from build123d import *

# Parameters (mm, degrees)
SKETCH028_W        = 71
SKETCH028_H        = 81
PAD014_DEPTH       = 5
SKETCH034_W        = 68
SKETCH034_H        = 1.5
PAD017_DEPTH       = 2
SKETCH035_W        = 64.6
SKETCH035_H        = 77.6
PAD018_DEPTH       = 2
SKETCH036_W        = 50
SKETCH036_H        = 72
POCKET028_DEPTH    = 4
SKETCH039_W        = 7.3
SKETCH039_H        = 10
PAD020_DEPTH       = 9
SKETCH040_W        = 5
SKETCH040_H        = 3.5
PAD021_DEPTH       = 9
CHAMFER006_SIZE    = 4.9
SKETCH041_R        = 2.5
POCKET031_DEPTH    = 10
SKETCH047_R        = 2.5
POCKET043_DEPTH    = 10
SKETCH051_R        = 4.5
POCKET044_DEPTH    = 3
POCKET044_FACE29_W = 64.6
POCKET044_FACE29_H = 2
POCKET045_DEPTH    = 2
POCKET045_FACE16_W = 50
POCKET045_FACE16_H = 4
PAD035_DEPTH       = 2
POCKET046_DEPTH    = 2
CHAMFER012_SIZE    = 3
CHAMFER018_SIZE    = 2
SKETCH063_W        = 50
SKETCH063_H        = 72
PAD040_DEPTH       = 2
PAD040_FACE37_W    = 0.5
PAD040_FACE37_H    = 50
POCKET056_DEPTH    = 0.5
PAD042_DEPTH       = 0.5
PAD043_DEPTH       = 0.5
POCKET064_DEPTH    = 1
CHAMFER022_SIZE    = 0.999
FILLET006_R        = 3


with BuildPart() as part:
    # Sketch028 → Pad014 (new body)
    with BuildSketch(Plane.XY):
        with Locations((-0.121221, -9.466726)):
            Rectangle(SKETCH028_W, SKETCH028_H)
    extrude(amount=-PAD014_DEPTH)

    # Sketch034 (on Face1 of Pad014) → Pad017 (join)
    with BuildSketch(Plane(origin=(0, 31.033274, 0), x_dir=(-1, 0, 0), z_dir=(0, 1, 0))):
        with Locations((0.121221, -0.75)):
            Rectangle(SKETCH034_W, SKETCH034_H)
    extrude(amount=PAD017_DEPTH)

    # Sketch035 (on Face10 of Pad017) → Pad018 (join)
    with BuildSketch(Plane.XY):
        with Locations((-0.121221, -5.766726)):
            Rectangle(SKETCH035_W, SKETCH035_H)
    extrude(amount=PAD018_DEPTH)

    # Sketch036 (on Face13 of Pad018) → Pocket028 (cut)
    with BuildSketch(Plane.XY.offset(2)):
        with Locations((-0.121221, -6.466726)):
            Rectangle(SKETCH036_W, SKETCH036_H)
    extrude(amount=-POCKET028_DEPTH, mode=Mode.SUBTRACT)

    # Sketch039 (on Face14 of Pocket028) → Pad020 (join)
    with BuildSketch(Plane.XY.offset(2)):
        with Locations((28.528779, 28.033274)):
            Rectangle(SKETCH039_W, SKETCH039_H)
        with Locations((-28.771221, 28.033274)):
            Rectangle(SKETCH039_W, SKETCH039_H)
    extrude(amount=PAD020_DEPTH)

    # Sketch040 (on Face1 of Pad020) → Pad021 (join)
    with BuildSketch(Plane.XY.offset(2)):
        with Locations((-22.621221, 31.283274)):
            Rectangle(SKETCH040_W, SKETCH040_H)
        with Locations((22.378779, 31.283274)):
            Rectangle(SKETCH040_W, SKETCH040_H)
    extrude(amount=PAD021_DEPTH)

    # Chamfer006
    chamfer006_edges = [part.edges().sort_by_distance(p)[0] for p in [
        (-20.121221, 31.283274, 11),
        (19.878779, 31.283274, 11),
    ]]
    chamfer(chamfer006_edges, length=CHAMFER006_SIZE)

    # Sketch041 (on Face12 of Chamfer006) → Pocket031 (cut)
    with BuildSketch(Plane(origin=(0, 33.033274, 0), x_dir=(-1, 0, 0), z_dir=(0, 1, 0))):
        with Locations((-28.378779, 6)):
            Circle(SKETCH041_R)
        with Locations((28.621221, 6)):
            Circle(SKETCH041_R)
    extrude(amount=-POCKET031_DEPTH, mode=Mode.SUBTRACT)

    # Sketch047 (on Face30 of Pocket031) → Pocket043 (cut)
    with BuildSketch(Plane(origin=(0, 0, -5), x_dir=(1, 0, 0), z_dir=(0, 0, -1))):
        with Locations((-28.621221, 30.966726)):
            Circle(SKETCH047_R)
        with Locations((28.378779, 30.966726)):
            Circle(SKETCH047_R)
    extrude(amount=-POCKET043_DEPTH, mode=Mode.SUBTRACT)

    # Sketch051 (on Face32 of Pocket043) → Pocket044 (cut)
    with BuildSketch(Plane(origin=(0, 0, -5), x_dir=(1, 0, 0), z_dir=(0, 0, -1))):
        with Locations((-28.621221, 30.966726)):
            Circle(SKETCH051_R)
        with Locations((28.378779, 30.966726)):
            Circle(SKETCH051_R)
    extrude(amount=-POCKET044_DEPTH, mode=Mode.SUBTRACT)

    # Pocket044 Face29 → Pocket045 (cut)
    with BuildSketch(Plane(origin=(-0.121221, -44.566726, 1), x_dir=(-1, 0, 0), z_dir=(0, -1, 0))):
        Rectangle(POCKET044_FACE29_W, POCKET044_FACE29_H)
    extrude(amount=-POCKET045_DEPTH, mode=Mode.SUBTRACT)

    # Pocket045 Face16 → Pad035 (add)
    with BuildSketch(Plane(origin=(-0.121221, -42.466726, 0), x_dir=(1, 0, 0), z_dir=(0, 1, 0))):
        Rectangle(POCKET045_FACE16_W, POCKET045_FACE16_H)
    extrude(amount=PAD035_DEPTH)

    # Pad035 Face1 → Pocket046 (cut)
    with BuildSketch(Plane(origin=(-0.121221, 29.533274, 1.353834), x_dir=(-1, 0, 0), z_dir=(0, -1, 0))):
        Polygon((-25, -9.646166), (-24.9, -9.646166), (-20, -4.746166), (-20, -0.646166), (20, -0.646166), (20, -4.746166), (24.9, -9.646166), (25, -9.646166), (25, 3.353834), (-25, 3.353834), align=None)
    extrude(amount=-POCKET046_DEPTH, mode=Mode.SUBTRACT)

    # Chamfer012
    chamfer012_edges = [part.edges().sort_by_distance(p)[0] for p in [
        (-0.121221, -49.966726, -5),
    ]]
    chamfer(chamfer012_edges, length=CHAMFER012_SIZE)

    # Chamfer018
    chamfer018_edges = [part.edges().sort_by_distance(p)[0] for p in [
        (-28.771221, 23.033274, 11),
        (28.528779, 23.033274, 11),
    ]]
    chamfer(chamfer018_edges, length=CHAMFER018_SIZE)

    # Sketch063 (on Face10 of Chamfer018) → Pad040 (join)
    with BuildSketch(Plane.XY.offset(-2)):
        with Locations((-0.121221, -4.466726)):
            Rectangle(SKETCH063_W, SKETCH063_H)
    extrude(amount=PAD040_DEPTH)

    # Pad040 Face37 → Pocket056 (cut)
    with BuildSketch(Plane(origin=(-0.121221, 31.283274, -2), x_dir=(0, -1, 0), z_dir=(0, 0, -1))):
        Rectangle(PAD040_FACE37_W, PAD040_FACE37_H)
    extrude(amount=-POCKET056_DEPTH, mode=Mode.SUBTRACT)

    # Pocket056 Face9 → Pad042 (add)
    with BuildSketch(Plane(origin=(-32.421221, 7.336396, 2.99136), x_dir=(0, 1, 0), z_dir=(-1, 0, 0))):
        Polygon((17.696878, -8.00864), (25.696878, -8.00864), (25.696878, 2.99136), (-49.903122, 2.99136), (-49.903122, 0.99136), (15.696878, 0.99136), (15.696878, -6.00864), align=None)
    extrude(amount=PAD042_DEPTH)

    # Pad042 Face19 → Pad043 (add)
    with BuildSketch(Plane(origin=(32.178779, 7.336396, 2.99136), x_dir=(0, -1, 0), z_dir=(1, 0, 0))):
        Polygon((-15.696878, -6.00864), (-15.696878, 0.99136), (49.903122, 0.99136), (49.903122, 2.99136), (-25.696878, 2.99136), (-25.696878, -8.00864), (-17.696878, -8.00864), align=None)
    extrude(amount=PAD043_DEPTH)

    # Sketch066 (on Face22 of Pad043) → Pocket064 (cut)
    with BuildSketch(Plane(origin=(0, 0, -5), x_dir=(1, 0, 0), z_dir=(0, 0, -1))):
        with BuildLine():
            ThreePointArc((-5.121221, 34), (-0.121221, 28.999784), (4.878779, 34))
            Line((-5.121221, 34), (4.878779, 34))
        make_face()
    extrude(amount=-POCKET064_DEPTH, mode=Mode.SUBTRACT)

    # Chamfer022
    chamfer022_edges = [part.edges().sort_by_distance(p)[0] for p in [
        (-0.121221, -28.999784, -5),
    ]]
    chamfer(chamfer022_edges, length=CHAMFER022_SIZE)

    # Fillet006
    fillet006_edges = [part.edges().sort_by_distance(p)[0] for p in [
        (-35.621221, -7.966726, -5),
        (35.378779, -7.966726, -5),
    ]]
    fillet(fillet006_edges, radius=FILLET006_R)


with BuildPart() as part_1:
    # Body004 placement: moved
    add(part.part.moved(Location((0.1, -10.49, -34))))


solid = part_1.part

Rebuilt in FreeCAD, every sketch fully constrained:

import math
import FreeCAD as App
import Part
import Sketcher
Q = App.Units.Quantity


def edges_at(feature, points):
    """Names of the edges that pass closest to the given points."""
    edges = feature.Shape.Edges
    near = lambda p: min(range(len(edges)), key=lambda i: edges[i].distToShape(Part.Vertex(*p))[0])
    return sorted({f"Edge{near(p) + 1}" for p in points})

doc = App.newDocument("Part")
params = doc.addObject("Spreadsheet::Sheet", "Params")
for row, (alias, value) in enumerate([
    ("sketch1_width", "71 mm"),
    ("sketch1_height", "81 mm"),
    ("pad1_length", "5 mm"),
    ("sketch2_width", "68 mm"),
    ("sketch2_height", "1.5 mm"),
    ("pad2_length", "2 mm"),
    ("sketch3_width", "64.6 mm"),
    ("sketch3_height", "77.6 mm"),
    ("pad3_length", "2 mm"),
    ("sketch4_width", "50 mm"),
    ("sketch4_height", "72 mm"),
    ("pocket1_length", "4 mm"),
    ("sketch5_height", "10 mm"),
    ("sketch5_width", "7.3 mm"),
    ("pad4_length", "9 mm"),
    ("sketch6_width", "5 mm"),
    ("sketch6_height", "3.5 mm"),
    ("pad5_length", "9 mm"),
    ("chamfer_size", "4.9 mm"),
    ("sketch7_diameter", "5 mm"),
    ("pocket2_length", "10 mm"),
    ("sketch8_diameter", "5 mm"),
    ("pocket3_length", "10 mm"),
    ("sketch9_diameter", "9 mm"),
    ("pocket4_length", "3 mm"),
    ("sketch10_height", "2 mm"),
    ("sketch10_width", "64.6 mm"),
    ("pocket5_length", "2 mm"),
    ("sketch11_width", "50 mm"),
    ("sketch11_height", "4 mm"),
    ("pad6_length", "2 mm"),
    ("sketch12_width", "40 mm"),
    ("sketch12_width2", "50 mm"),
    ("sketch12_height", "13 mm"),
    ("sketch12_width3", "0.1 mm"),
    ("sketch12_height2", "4.1 mm"),
    ("pocket6_length", "2 mm"),
    ("chamfer2_size", "3 mm"),
    ("chamfer3_size", "2 mm"),
    ("sketch13_width", "50 mm"),
    ("sketch13_height", "72 mm"),
    ("pad7_length", "2 mm"),
    ("sketch14_width", "50 mm"),
    ("sketch14_height", "0.5 mm"),
    ("pocket7_length", "0.5 mm"),
    ("sketch15_width", "8 mm"),
    ("sketch15_height", "11 mm"),
    ("sketch15_height2", "2 mm"),
    ("sketch15_height3", "7 mm"),
    ("sketch15_width2", "75.6 mm"),
    ("pad8_length", "0.5 mm"),
    ("sketch16_width", "8 mm"),
    ("sketch16_height", "7 mm"),
    ("sketch16_height2", "2 mm"),
    ("sketch16_height3", "11 mm"),
    ("sketch16_width2", "65.6 mm"),
    ("pad9_length", "0.5 mm"),
    ("sketch17_radius", "5 mm"),
    ("pocket8_length", "1 mm"),
    ("chamfer4_size", "0.999 mm"),
    ("fillet_radius", "3 mm"),
], start=1):
    params.set(f"A{row}", alias)
    params.set(f"B{row}", "=" + value)
    params.setAlias(f"B{row}", alias)

body = doc.addObject("PartDesign::Body", "Body")

sketch1 = body.newObject("Sketcher::SketchObject", "Sketch")
sketch1.AttachmentSupport = (doc.getObject("XY_Plane"), [""])
sketch1.MapMode = "FlatFace"
sketch1.addGeometry([
    Part.LineSegment(App.Vector(-36, 31, 0), App.Vector(-36, -50, 0)),
    Part.LineSegment(App.Vector(-36, -50, 0), App.Vector(35, -50, 0)),
    Part.LineSegment(App.Vector(35, -50, 0), App.Vector(35, 31, 0)),
    Part.LineSegment(App.Vector(35, 31, 0), App.Vector(-36, 31, 0)),
], False)
sketch1.addConstraint([
    Sketcher.Constraint("Coincident", 0, 2, 1, 1),
    Sketcher.Constraint("Coincident", 1, 2, 2, 1),
    Sketcher.Constraint("Coincident", 2, 2, 3, 1),
    Sketcher.Constraint("Coincident", 3, 2, 0, 1),
    Sketcher.Constraint("Vertical", 0),
    Sketcher.Constraint("Horizontal", 1),
    Sketcher.Constraint("Vertical", 2),
    Sketcher.Constraint("Horizontal", 3),
    Sketcher.Constraint("DistanceX", 1, 1, 1, 2, Q("71 mm")),
    Sketcher.Constraint("DistanceY", 0, 2, 0, 1, Q("81 mm")),
    Sketcher.Constraint("DistanceX", 0, 2, -1, 1, Q("35.621221 mm")),
    Sketcher.Constraint("DistanceY", 0, 2, -1, 1, Q("49.966726 mm")),
])
sketch1.setExpression("Constraints[8]", "Params.sketch1_width")
sketch1.setExpression("Constraints[9]", "Params.sketch1_height")
pad1 = body.newObject("PartDesign::Pad", "Pad")
pad1.Profile = sketch1
pad1.setExpression("Length", "Params.pad1_length")
pad1.Reversed = True

sketch2 = body.newObject("Sketcher::SketchObject", "Sketch001")
sketch2.AttachmentSupport = (doc.getObject("XZ_Plane"), [""])
sketch2.MapMode = "FlatFace"
sketch2.AttachmentOffset = App.Placement(App.Vector(0, 0, -31.033274), App.Rotation())
sketch2.addGeometry([
    Part.LineSegment(App.Vector(33.9, 0, 0), App.Vector(33.9, -1.5, 0)),
    Part.LineSegment(App.Vector(33.9, -1.5, 0), App.Vector(-34.1, -1.5, 0)),
    Part.LineSegment(App.Vector(-34.1, -1.5, 0), App.Vector(-34.1, 0, 0)),
    Part.LineSegment(App.Vector(-34.1, 0, 0), App.Vector(33.9, 0, 0)),
], False)
sketch2.addConstraint([
    Sketcher.Constraint("Coincident", 0, 2, 1, 1),
    Sketcher.Constraint("Coincident", 1, 2, 2, 1),
    Sketcher.Constraint("Coincident", 2, 2, 3, 1),
    Sketcher.Constraint("Coincident", 3, 2, 0, 1),
    Sketcher.Constraint("Vertical", 0),
    Sketcher.Constraint("Horizontal", 1),
    Sketcher.Constraint("Vertical", 2),
    Sketcher.Constraint("Horizontal", 3),
    Sketcher.Constraint("PointOnObject", 2, 2, -1),
    Sketcher.Constraint("DistanceX", 1, 2, 1, 1, Q("68 mm")),
    Sketcher.Constraint("DistanceY", 0, 2, 0, 1, Q("1.5 mm")),
    Sketcher.Constraint("DistanceX", -1, 1, 0, 2, Q("33.878779 mm")),
])
sketch2.setExpression("Constraints[9]", "Params.sketch2_width")
sketch2.setExpression("Constraints[10]", "Params.sketch2_height")
pad2 = body.newObject("PartDesign::Pad", "Pad001")
pad2.Profile = sketch2
pad2.setExpression("Length", "Params.pad2_length")
pad2.Reversed = True

sketch3 = body.newObject("Sketcher::SketchObject", "Sketch002")
sketch3.AttachmentSupport = (doc.getObject("XY_Plane"), [""])
sketch3.MapMode = "FlatFace"
sketch3.addGeometry([
    Part.LineSegment(App.Vector(-32, 33, 0), App.Vector(-32, -45, 0)),
    Part.LineSegment(App.Vector(-32, -45, 0), App.Vector(32, -45, 0)),
    Part.LineSegment(App.Vector(32, -45, 0), App.Vector(32, 33, 0)),
    Part.LineSegment(App.Vector(32, 33, 0), App.Vector(-32, 33, 0)),
], False)
sketch3.addConstraint([
    Sketcher.Constraint("Coincident", 0, 2, 1, 1),
    Sketcher.Constraint("Coincident", 1, 2, 2, 1),
    Sketcher.Constraint("Coincident", 2, 2, 3, 1),
    Sketcher.Constraint("Coincident", 3, 2, 0, 1),
    Sketcher.Constraint("Vertical", 0),
    Sketcher.Constraint("Horizontal", 1),
    Sketcher.Constraint("Vertical", 2),
    Sketcher.Constraint("Horizontal", 3),
    Sketcher.Constraint("DistanceX", 1, 1, 1, 2, Q("64.6 mm")),
    Sketcher.Constraint("DistanceY", 0, 2, 0, 1, Q("77.6 mm")),
    Sketcher.Constraint("DistanceX", 0, 2, -1, 1, Q("32.421221 mm")),
    Sketcher.Constraint("DistanceY", 0, 2, -1, 1, Q("44.566726 mm")),
])
sketch3.setExpression("Constraints[8]", "Params.sketch3_width")
sketch3.setExpression("Constraints[9]", "Params.sketch3_height")
pad3 = body.newObject("PartDesign::Pad", "Pad002")
pad3.Profile = sketch3
pad3.setExpression("Length", "Params.pad3_length")

sketch4 = body.newObject("Sketcher::SketchObject", "Sketch003")
sketch4.AttachmentSupport = (doc.getObject("XY_Plane"), [""])
sketch4.MapMode = "FlatFace"
sketch4.AttachmentOffset = App.Placement(App.Vector(0, 0, 2), App.Rotation())
sketch4.addGeometry([
    Part.LineSegment(App.Vector(-25, 30, 0), App.Vector(-25, -42, 0)),
    Part.LineSegment(App.Vector(-25, -42, 0), App.Vector(25, -42, 0)),
    Part.LineSegment(App.Vector(25, -42, 0), App.Vector(25, 30, 0)),
    Part.LineSegment(App.Vector(25, 30, 0), App.Vector(-25, 30, 0)),
], False)
sketch4.addConstraint([
    Sketcher.Constraint("Coincident", 0, 2, 1, 1),
    Sketcher.Constraint("Coincident", 1, 2, 2, 1),
    Sketcher.Constraint("Coincident", 2, 2, 3, 1),
    Sketcher.Constraint("Coincident", 3, 2, 0, 1),
    Sketcher.Constraint("Vertical", 0),
    Sketcher.Constraint("Horizontal", 1),
    Sketcher.Constraint("Vertical", 2),
    Sketcher.Constraint("Horizontal", 3),
    Sketcher.Constraint("DistanceX", 1, 1, 1, 2, Q("50 mm")),
    Sketcher.Constraint("DistanceY", 0, 2, 0, 1, Q("72 mm")),
    Sketcher.Constraint("DistanceX", 0, 2, -1, 1, Q("25.121221 mm")),
    Sketcher.Constraint("DistanceY", 0, 2, -1, 1, Q("42.466726 mm")),
])
sketch4.setExpression("Constraints[8]", "Params.sketch4_width")
sketch4.setExpression("Constraints[9]", "Params.sketch4_height")
pocket1 = body.newObject("PartDesign::Pocket", "Pocket")
pocket1.Profile = sketch4
pocket1.setExpression("Length", "Params.pocket1_length")

sketch5 = body.newObject("Sketcher::SketchObject", "Sketch004")
sketch5.AttachmentSupport = (doc.getObject("XY_Plane"), [""])
sketch5.MapMode = "FlatFace"
sketch5.AttachmentOffset = App.Placement(App.Vector(0, 0, 2), App.Rotation())
sketch5.addGeometry([
    Part.LineSegment(App.Vector(25, 33, 0), App.Vector(25, 23, 0)),
    Part.LineSegment(App.Vector(25, 23, 0), App.Vector(32, 23, 0)),
    Part.LineSegment(App.Vector(32, 23, 0), App.Vector(32, 33, 0)),
    Part.LineSegment(App.Vector(32, 33, 0), App.Vector(25, 33, 0)),
    Part.LineSegment(App.Vector(-32, 33, 0), App.Vector(-32, 23, 0)),
    Part.LineSegment(App.Vector(-32, 23, 0), App.Vector(-25, 23, 0)),
    Part.LineSegment(App.Vector(-25, 23, 0), App.Vector(-25, 33, 0)),
    Part.LineSegment(App.Vector(-25, 33, 0), App.Vector(-32, 33, 0)),
], False)
sketch5.addConstraint([
    Sketcher.Constraint("Coincident", 0, 2, 1, 1),
    Sketcher.Constraint("Coincident", 1, 2, 2, 1),
    Sketcher.Constraint("Coincident", 2, 2, 3, 1),
    Sketcher.Constraint("Coincident", 3, 2, 0, 1),
    Sketcher.Constraint("Coincident", 4, 2, 5, 1),
    Sketcher.Constraint("Coincident", 5, 2, 6, 1),
    Sketcher.Constraint("Coincident", 6, 2, 7, 1),
    Sketcher.Constraint("Coincident", 7, 2, 4, 1),
    Sketcher.Constraint("Vertical", 0),
    Sketcher.Constraint("Horizontal", 1),
    Sketcher.Constraint("Vertical", 2),
    Sketcher.Constraint("Horizontal", 3),
    Sketcher.Constraint("Vertical", 4),
    Sketcher.Constraint("Horizontal", 5),
    Sketcher.Constraint("Vertical", 6),
    Sketcher.Constraint("Horizontal", 7),
    Sketcher.Constraint("Horizontal", 1, 2, 4, 2),
    Sketcher.Constraint("Horizontal", 3, 2, 6, 2),
    Sketcher.Constraint("Equal", 3, 5),
    Sketcher.Constraint("DistanceY", 0, 2, 0, 1, Q("10 mm")),
    Sketcher.Constraint("DistanceX", 1, 1, 1, 2, Q("7.3 mm")),
    Sketcher.Constraint("DistanceX", 5, 2, 0, 2, Q("50 mm")),
    Sketcher.Constraint("DistanceX", -1, 1, 0, 2, Q("24.878779 mm")),
    Sketcher.Constraint("DistanceY", -1, 1, 0, 2, Q("23.033274 mm")),
])
sketch5.setExpression("Constraints[19]", "Params.sketch5_height")
sketch5.setExpression("Constraints[20]", "Params.sketch5_width")
pad4 = body.newObject("PartDesign::Pad", "Pad003")
pad4.Profile = sketch5
pad4.setExpression("Length", "Params.pad4_length")

sketch6 = body.newObject("Sketcher::SketchObject", "Sketch005")
sketch6.AttachmentSupport = (doc.getObject("XY_Plane"), [""])
sketch6.MapMode = "FlatFace"
sketch6.AttachmentOffset = App.Placement(App.Vector(0, 0, 2), App.Rotation())
sketch6.addGeometry([
    Part.LineSegment(App.Vector(-25.1, 33, 0), App.Vector(-25.1, 29.5, 0)),
    Part.LineSegment(App.Vector(-25.1, 29.5, 0), App.Vector(-20.1, 29.5, 0)),
    Part.LineSegment(App.Vector(-20.1, 29.5, 0), App.Vector(-20.1, 33, 0)),
    Part.LineSegment(App.Vector(-20.1, 33, 0), App.Vector(-25.1, 33, 0)),
    Part.LineSegment(App.Vector(19.9, 33, 0), App.Vector(19.9, 29.5, 0)),
    Part.LineSegment(App.Vector(19.9, 29.5, 0), App.Vector(24.9, 29.5, 0)),
    Part.LineSegment(App.Vector(24.9, 29.5, 0), App.Vector(24.9, 33, 0)),
    Part.LineSegment(App.Vector(24.9, 33, 0), App.Vector(19.9, 33, 0)),
], False)
sketch6.addConstraint([
    Sketcher.Constraint("Coincident", 0, 2, 1, 1),
    Sketcher.Constraint("Coincident", 1, 2, 2, 1),
    Sketcher.Constraint("Coincident", 2, 2, 3, 1),
    Sketcher.Constraint("Coincident", 3, 2, 0, 1),
    Sketcher.Constraint("Coincident", 4, 2, 5, 1),
    Sketcher.Constraint("Coincident", 5, 2, 6, 1),
    Sketcher.Constraint("Coincident", 6, 2, 7, 1),
    Sketcher.Constraint("Coincident", 7, 2, 4, 1),
    Sketcher.Constraint("Vertical", 0),
    Sketcher.Constraint("Horizontal", 1),
    Sketcher.Constraint("Vertical", 2),
    Sketcher.Constraint("Horizontal", 3),
    Sketcher.Constraint("Vertical", 4),
    Sketcher.Constraint("Horizontal", 5),
    Sketcher.Constraint("Vertical", 6),
    Sketcher.Constraint("Horizontal", 7),
    Sketcher.Constraint("Horizontal", 1, 2, 4, 2),
    Sketcher.Constraint("Horizontal", 3, 2, 6, 2),
    Sketcher.Constraint("Equal", 3, 5),
    Sketcher.Constraint("DistanceX", 1, 1, 1, 2, Q("5 mm")),
    Sketcher.Constraint("DistanceY", 0, 2, 0, 1, Q("3.5 mm")),
    Sketcher.Constraint("DistanceX", 1, 2, 4, 2, Q("40 mm")),
    Sketcher.Constraint("DistanceX", 0, 2, -1, 1, Q("25.121221 mm")),
    Sketcher.Constraint("DistanceY", -1, 1, 0, 2, Q("29.533274 mm")),
])
sketch6.setExpression("Constraints[19]", "Params.sketch6_width")
sketch6.setExpression("Constraints[20]", "Params.sketch6_height")
pad5 = body.newObject("PartDesign::Pad", "Pad004")
pad5.Profile = sketch6
pad5.setExpression("Length", "Params.pad5_length")
doc.recompute()

chamfer = body.newObject("PartDesign::Chamfer", "Chamfer")
chamfer.Base = (pad5, edges_at(pad5, [(-20.121, 31.283, 11), (19.879, 31.283, 11)]))
chamfer.setExpression("Size", "Params.chamfer_size")

sketch7 = body.newObject("Sketcher::SketchObject", "Sketch006")
sketch7.AttachmentSupport = (doc.getObject("XZ_Plane"), [""])
sketch7.MapMode = "FlatFace"
sketch7.AttachmentOffset = App.Placement(App.Vector(0, 0, -33.033274), App.Rotation())
sketch7.addGeometry([
    Part.Circle(App.Vector(28.4, 6, 0), App.Vector(0, 0, 1), 2.5),
    Part.Circle(App.Vector(-28.6, 6, 0), App.Vector(0, 0, 1), 2.5),
], False)
sketch7.addConstraint([
    Sketcher.Constraint("Equal", 0, 1),
    Sketcher.Constraint("Horizontal", 0, 3, 1, 3),
    Sketcher.Constraint("Diameter", 0, Q("5 mm")),
    Sketcher.Constraint("DistanceY", -1, 1, 0, 3, Q("6 mm")),
    Sketcher.Constraint("DistanceX", 1, 3, 0, 3, Q("57 mm")),
    Sketcher.Constraint("DistanceX", -1, 1, 0, 3, Q("28.378779 mm")),
])
sketch7.setExpression("Constraints[2]", "Params.sketch7_diameter")
pocket2 = body.newObject("PartDesign::Pocket", "Pocket001")
pocket2.Profile = sketch7
pocket2.setExpression("Length", "Params.pocket2_length")
pocket2.Reversed = True

sketch8 = body.newObject("Sketcher::SketchObject", "Sketch007")
sketch8.AttachmentSupport = (doc.getObject("XY_Plane"), [""])
sketch8.MapMode = "FlatFace"
sketch8.AttachmentOffset = App.Placement(App.Vector(0, 0, -5), App.Rotation())
sketch8.addGeometry([
    Part.Circle(App.Vector(-28.6, -31, 0), App.Vector(0, 0, 1), 2.5),
    Part.Circle(App.Vector(28.4, -31, 0), App.Vector(0, 0, 1), 2.5),
], False)
sketch8.addConstraint([
    Sketcher.Constraint("Equal", 0, 1),
    Sketcher.Constraint("Horizontal", 0, 3, 1, 3),
    Sketcher.Constraint("Diameter", 0, Q("5 mm")),
    Sketcher.Constraint("DistanceX", 0, 3, 1, 3, Q("57 mm")),
    Sketcher.Constraint("DistanceX", 0, 3, -1, 1, Q("28.621221 mm")),
    Sketcher.Constraint("DistanceY", 0, 3, -1, 1, Q("30.966726 mm")),
])
sketch8.setExpression("Constraints[2]", "Params.sketch8_diameter")
pocket3 = body.newObject("PartDesign::Pocket", "Pocket002")
pocket3.Profile = sketch8
pocket3.setExpression("Length", "Params.pocket3_length")
pocket3.Reversed = True

sketch9 = body.newObject("Sketcher::SketchObject", "Sketch008")
sketch9.AttachmentSupport = (doc.getObject("XY_Plane"), [""])
sketch9.MapMode = "FlatFace"
sketch9.AttachmentOffset = App.Placement(App.Vector(0, 0, -5), App.Rotation())
sketch9.addGeometry([
    Part.Circle(App.Vector(-28.6, -31, 0), App.Vector(0, 0, 1), 4.5),
    Part.Circle(App.Vector(28.4, -31, 0), App.Vector(0, 0, 1), 4.5),
], False)
sketch9.addConstraint([
    Sketcher.Constraint("Equal", 0, 1),
    Sketcher.Constraint("Horizontal", 0, 3, 1, 3),
    Sketcher.Constraint("Diameter", 0, Q("9 mm")),
    Sketcher.Constraint("DistanceX", 0, 3, 1, 3, Q("57 mm")),
    Sketcher.Constraint("DistanceX", 0, 3, -1, 1, Q("28.621221 mm")),
    Sketcher.Constraint("DistanceY", 0, 3, -1, 1, Q("30.966726 mm")),
])
sketch9.setExpression("Constraints[2]", "Params.sketch9_diameter")
pocket4 = body.newObject("PartDesign::Pocket", "Pocket003")
pocket4.Profile = sketch9
pocket4.setExpression("Length", "Params.pocket4_length")
pocket4.Reversed = True

sketch10 = body.newObject("Sketcher::SketchObject", "Sketch009")
sketch10.AttachmentSupport = (doc.getObject("XZ_Plane"), [""])
sketch10.MapMode = "FlatFace"
sketch10.AttachmentOffset = App.Placement(App.Vector(0, 0, 44.566726), App.Rotation())
sketch10.addGeometry([
    Part.LineSegment(App.Vector(32.2, 0, 0), App.Vector(32.2, 2, 0)),
    Part.LineSegment(App.Vector(32.2, 2, 0), App.Vector(-32.4, 2, 0)),
    Part.LineSegment(App.Vector(-32.4, 2, 0), App.Vector(-32.4, 0, 0)),
    Part.LineSegment(App.Vector(-32.4, 0, 0), App.Vector(32.2, 0, 0)),
], False)
sketch10.addConstraint([
    Sketcher.Constraint("Coincident", 0, 2, 1, 1),
    Sketcher.Constraint("Coincident", 1, 2, 2, 1),
    Sketcher.Constraint("Coincident", 2, 2, 3, 1),
    Sketcher.Constraint("Coincident", 3, 2, 0, 1),
    Sketcher.Constraint("Vertical", 0),
    Sketcher.Constraint("Horizontal", 1),
    Sketcher.Constraint("Vertical", 2),
    Sketcher.Constraint("Horizontal", 3),
    Sketcher.Constraint("PointOnObject", 2, 2, -1),
    Sketcher.Constraint("DistanceY", 0, 1, 0, 2, Q("2 mm")),
    Sketcher.Constraint("DistanceX", 1, 2, 1, 1, Q("64.6 mm")),
    Sketcher.Constraint("DistanceX", -1, 1, 0, 2, Q("32.178779 mm")),
])
sketch10.setExpression("Constraints[9]", "Params.sketch10_height")
sketch10.setExpression("Constraints[10]", "Params.sketch10_width")
pocket5 = body.newObject("PartDesign::Pocket", "Pocket004")
pocket5.Profile = sketch10
pocket5.setExpression("Length", "Params.pocket5_length")

sketch11 = body.newObject("Sketcher::SketchObject", "Sketch010")
sketch11.AttachmentSupport = (doc.getObject("XZ_Plane"), [""])
sketch11.MapMode = "FlatFace"
sketch11.AttachmentOffset = App.Placement(App.Vector(0, 0, 42.466726), App.Rotation())
sketch11.addGeometry([
    Part.LineSegment(App.Vector(-25.1, -2, 0), App.Vector(-25.1, 2, 0)),
    Part.LineSegment(App.Vector(-25.1, 2, 0), App.Vector(24.9, 2, 0)),
    Part.LineSegment(App.Vector(24.9, 2, 0), App.Vector(24.9, -2, 0)),
    Part.LineSegment(App.Vector(24.9, -2, 0), App.Vector(-25.1, -2, 0)),
], False)
sketch11.addConstraint([
    Sketcher.Constraint("Coincident", 0, 2, 1, 1),
    Sketcher.Constraint("Coincident", 1, 2, 2, 1),
    Sketcher.Constraint("Coincident", 2, 2, 3, 1),
    Sketcher.Constraint("Coincident", 3, 2, 0, 1),
    Sketcher.Constraint("Vertical", 0),
    Sketcher.Constraint("Horizontal", 1),
    Sketcher.Constraint("Vertical", 2),
    Sketcher.Constraint("Horizontal", 3),
    Sketcher.Constraint("DistanceX", 1, 1, 1, 2, Q("50 mm")),
    Sketcher.Constraint("DistanceY", 0, 1, 0, 2, Q("4 mm")),
    Sketcher.Constraint("DistanceY", -1, 1, 0, 2, Q("2 mm")),
    Sketcher.Constraint("DistanceX", 0, 2, -1, 1, Q("25.121221 mm")),
])
sketch11.setExpression("Constraints[8]", "Params.sketch11_width")
sketch11.setExpression("Constraints[9]", "Params.sketch11_height")
pad6 = body.newObject("PartDesign::Pad", "Pad005")
pad6.Profile = sketch11
pad6.setExpression("Length", "Params.pad6_length")
pad6.Reversed = True

sketch12 = body.newObject("Sketcher::SketchObject", "Sketch011")
sketch12.AttachmentSupport = (doc.getObject("XZ_Plane"), [""])
sketch12.MapMode = "FlatFace"
sketch12.AttachmentOffset = App.Placement(App.Vector(0, 0, -29.533274), App.Rotation())
sketch12.addGeometry([
    Part.LineSegment(App.Vector(24.88, 11, 0), App.Vector(24.78, 11, 0)),
    Part.LineSegment(App.Vector(24.78, 11, 0), App.Vector(19.88, 6.1, 0)),
    Part.LineSegment(App.Vector(19.88, 6.1, 0), App.Vector(19.88, 2, 0)),
    Part.LineSegment(App.Vector(19.88, 2, 0), App.Vector(-20.12, 2, 0)),
    Part.LineSegment(App.Vector(-20.12, 2, 0), App.Vector(-20.12, 6.1, 0)),
    Part.LineSegment(App.Vector(-20.12, 6.1, 0), App.Vector(-25.02, 11, 0)),
    Part.LineSegment(App.Vector(-25.02, 11, 0), App.Vector(-25.12, 11, 0)),
    Part.LineSegment(App.Vector(-25.12, 11, 0), App.Vector(-25.12, -2, 0)),
    Part.LineSegment(App.Vector(-25.12, -2, 0), App.Vector(24.88, -2, 0)),
    Part.LineSegment(App.Vector(24.88, -2, 0), App.Vector(24.88, 11, 0)),
], False)
sketch12.addConstraint([
    Sketcher.Constraint("Coincident", 0, 2, 1, 1),
    Sketcher.Constraint("Coincident", 1, 2, 2, 1),
    Sketcher.Constraint("Coincident", 2, 2, 3, 1),
    Sketcher.Constraint("Coincident", 3, 2, 4, 1),
    Sketcher.Constraint("Coincident", 4, 2, 5, 1),
    Sketcher.Constraint("Coincident", 5, 2, 6, 1),
    Sketcher.Constraint("Coincident", 6, 2, 7, 1),
    Sketcher.Constraint("Coincident", 7, 2, 8, 1),
    Sketcher.Constraint("Coincident", 8, 2, 9, 1),
    Sketcher.Constraint("Coincident", 9, 2, 0, 1),
    Sketcher.Constraint("Horizontal", 0),
    Sketcher.Constraint("Vertical", 2),
    Sketcher.Constraint("Horizontal", 3),
    Sketcher.Constraint("Vertical", 4),
    Sketcher.Constraint("Horizontal", 6),
    Sketcher.Constraint("Vertical", 7),
    Sketcher.Constraint("Horizontal", 8),
    Sketcher.Constraint("Vertical", 9),
    Sketcher.Constraint("Perpendicular", 1, 5),
    Sketcher.Constraint("Horizontal", 1, 2, 4, 2),
    Sketcher.Constraint("Horizontal", 0, 2, 5, 2),
    Sketcher.Constraint("Equal", 0, 6),
    Sketcher.Constraint("Equal", 1, 5),
    Sketcher.Constraint("DistanceX", 3, 2, 3, 1, Q("40 mm")),
    Sketcher.Constraint("DistanceX", 8, 1, 8, 2, Q("50 mm")),
    Sketcher.Constraint("DistanceY", 7, 2, 7, 1, Q("13 mm")),
    Sketcher.Constraint("DistanceX", 0, 2, 0, 1, Q("0.1 mm")),
    Sketcher.Constraint("DistanceY", 2, 2, 2, 1, Q("4.1 mm")),
    Sketcher.Constraint("DistanceY", -1, 1, 0, 2, Q("11 mm")),
    Sketcher.Constraint("DistanceX", -1, 1, 0, 2, Q("24.778779 mm")),
])
sketch12.setExpression("Constraints[23]", "Params.sketch12_width")
sketch12.setExpression("Constraints[24]", "Params.sketch12_width2")
sketch12.setExpression("Constraints[25]", "Params.sketch12_height")
sketch12.setExpression("Constraints[26]", "Params.sketch12_width3")
sketch12.setExpression("Constraints[27]", "Params.sketch12_height2")
pocket6 = body.newObject("PartDesign::Pocket", "Pocket005")
pocket6.Profile = sketch12
pocket6.setExpression("Length", "Params.pocket6_length")
doc.recompute()

chamfer2 = body.newObject("PartDesign::Chamfer", "Chamfer001")
chamfer2.Base = (pocket6, edges_at(pocket6, [(-0.121, -49.967, -5)]))
chamfer2.setExpression("Size", "Params.chamfer2_size")
doc.recompute()

chamfer3 = body.newObject("PartDesign::Chamfer", "Chamfer002")
chamfer3.Base = (chamfer2, edges_at(chamfer2, [(-28.771, 23.033, 11), (28.529, 23.033, 11)]))
chamfer3.setExpression("Size", "Params.chamfer3_size")

sketch13 = body.newObject("Sketcher::SketchObject", "Sketch012")
sketch13.AttachmentSupport = (doc.getObject("XY_Plane"), [""])
sketch13.MapMode = "FlatFace"
sketch13.AttachmentOffset = App.Placement(App.Vector(0, 0, -2), App.Rotation())
sketch13.addGeometry([
    Part.LineSegment(App.Vector(-25, 32, 0), App.Vector(-25, -40, 0)),
    Part.LineSegment(App.Vector(-25, -40, 0), App.Vector(25, -40, 0)),
    Part.LineSegment(App.Vector(25, -40, 0), App.Vector(25, 32, 0)),
    Part.LineSegment(App.Vector(25, 32, 0), App.Vector(-25, 32, 0)),
], False)
sketch13.addConstraint([
    Sketcher.Constraint("Coincident", 0, 2, 1, 1),
    Sketcher.Constraint("Coincident", 1, 2, 2, 1),
    Sketcher.Constraint("Coincident", 2, 2, 3, 1),
    Sketcher.Constraint("Coincident", 3, 2, 0, 1),
    Sketcher.Constraint("Vertical", 0),
    Sketcher.Constraint("Horizontal", 1),
    Sketcher.Constraint("Vertical", 2),
    Sketcher.Constraint("Horizontal", 3),
    Sketcher.Constraint("DistanceX", 1, 1, 1, 2, Q("50 mm")),
    Sketcher.Constraint("DistanceY", 0, 2, 0, 1, Q("72 mm")),
    Sketcher.Constraint("DistanceX", 0, 2, -1, 1, Q("25.121221 mm")),
    Sketcher.Constraint("DistanceY", 0, 2, -1, 1, Q("40.466726 mm")),
])
sketch13.setExpression("Constraints[8]", "Params.sketch13_width")
sketch13.setExpression("Constraints[9]", "Params.sketch13_height")
pad7 = body.newObject("PartDesign::Pad", "Pad006")
pad7.Profile = sketch13
pad7.setExpression("Length", "Params.pad7_length")

sketch14 = body.newObject("Sketcher::SketchObject", "Sketch013")
sketch14.AttachmentSupport = (doc.getObject("XY_Plane"), [""])
sketch14.MapMode = "FlatFace"
sketch14.AttachmentOffset = App.Placement(App.Vector(0, 0, -2), App.Rotation())
sketch14.addGeometry([
    Part.LineSegment(App.Vector(-25.1, 31.5, 0), App.Vector(24.9, 31.5, 0)),
    Part.LineSegment(App.Vector(24.9, 31.5, 0), App.Vector(24.9, 31, 0)),
    Part.LineSegment(App.Vector(24.9, 31, 0), App.Vector(-25.1, 31, 0)),
    Part.LineSegment(App.Vector(-25.1, 31, 0), App.Vector(-25.1, 31.5, 0)),
], False)
sketch14.addConstraint([
    Sketcher.Constraint("Coincident", 0, 2, 1, 1),
    Sketcher.Constraint("Coincident", 1, 2, 2, 1),
    Sketcher.Constraint("Coincident", 2, 2, 3, 1),
    Sketcher.Constraint("Coincident", 3, 2, 0, 1),
    Sketcher.Constraint("Horizontal", 0),
    Sketcher.Constraint("Vertical", 1),
    Sketcher.Constraint("Horizontal", 2),
    Sketcher.Constraint("Vertical", 3),
    Sketcher.Constraint("DistanceX", 0, 1, 0, 2, Q("50 mm")),
    Sketcher.Constraint("DistanceY", 1, 2, 1, 1, Q("0.5 mm")),
    Sketcher.Constraint("DistanceX", -1, 1, 0, 2, Q("24.878779 mm")),
    Sketcher.Constraint("DistanceY", -1, 1, 0, 2, Q("31.533274 mm")),
])
sketch14.setExpression("Constraints[8]", "Params.sketch14_width")
sketch14.setExpression("Constraints[9]", "Params.sketch14_height")
pocket7 = body.newObject("PartDesign::Pocket", "Pocket006")
pocket7.Profile = sketch14
pocket7.setExpression("Length", "Params.pocket7_length")
pocket7.Reversed = True

sketch15 = body.newObject("Sketcher::SketchObject", "Sketch014")
sketch15.AttachmentSupport = (doc.getObject("YZ_Plane"), [""])
sketch15.MapMode = "FlatFace"
sketch15.AttachmentOffset = App.Placement(App.Vector(0, 0, -32.421221), App.Rotation())
sketch15.addGeometry([
    Part.LineSegment(App.Vector(25, 11, 0), App.Vector(33, 11, 0)),
    Part.LineSegment(App.Vector(33, 11, 0), App.Vector(33, 0, 0)),
    Part.LineSegment(App.Vector(33, 0, 0), App.Vector(-42.6, 0, 0)),
    Part.LineSegment(App.Vector(-42.6, 0, 0), App.Vector(-42.6, 2, 0)),
    Part.LineSegment(App.Vector(-42.6, 2, 0), App.Vector(23, 2, 0)),
    Part.LineSegment(App.Vector(23, 2, 0), App.Vector(23, 9, 0)),
    Part.LineSegment(App.Vector(23, 9, 0), App.Vector(25, 11, 0)),
], False)
sketch15.addConstraint([
    Sketcher.Constraint("Coincident", 0, 2, 1, 1),
    Sketcher.Constraint("Coincident", 1, 2, 2, 1),
    Sketcher.Constraint("Coincident", 2, 2, 3, 1),
    Sketcher.Constraint("Coincident", 3, 2, 4, 1),
    Sketcher.Constraint("Coincident", 4, 2, 5, 1),
    Sketcher.Constraint("Coincident", 5, 2, 6, 1),
    Sketcher.Constraint("Coincident", 6, 2, 0, 1),
    Sketcher.Constraint("Horizontal", 0),
    Sketcher.Constraint("Vertical", 1),
    Sketcher.Constraint("Horizontal", 2),
    Sketcher.Constraint("Vertical", 3),
    Sketcher.Constraint("Horizontal", 4),
    Sketcher.Constraint("Vertical", 5),
    Sketcher.Constraint("PointOnObject", 1, 2, -1),
    Sketcher.Constraint("DistanceX", 0, 1, 0, 2, Q("8 mm")),
    Sketcher.Constraint("DistanceY", 1, 2, 1, 1, Q("11 mm")),
    Sketcher.Constraint("DistanceY", 3, 1, 3, 2, Q("2 mm")),
    Sketcher.Constraint("DistanceY", 5, 1, 5, 2, Q("7 mm")),
    Sketcher.Constraint("Angle", 6, Q("45 deg")),
    Sketcher.Constraint("DistanceX", 2, 2, 2, 1, Q("75.6 mm")),
    Sketcher.Constraint("DistanceX", -1, 1, 0, 2, Q("33.033274 mm")),
])
sketch15.setExpression("Constraints[14]", "Params.sketch15_width")
sketch15.setExpression("Constraints[15]", "Params.sketch15_height")
sketch15.setExpression("Constraints[16]", "Params.sketch15_height2")
sketch15.setExpression("Constraints[17]", "Params.sketch15_height3")
sketch15.setExpression("Constraints[19]", "Params.sketch15_width2")
pad8 = body.newObject("PartDesign::Pad", "Pad007")
pad8.Profile = sketch15
pad8.setExpression("Length", "Params.pad8_length")
pad8.Reversed = True

sketch16 = body.newObject("Sketcher::SketchObject", "Sketch015")
sketch16.AttachmentSupport = (doc.getObject("YZ_Plane"), [""])
sketch16.MapMode = "FlatFace"
sketch16.AttachmentOffset = App.Placement(App.Vector(0, 0, 32.178779), App.Rotation())
sketch16.addGeometry([
    Part.LineSegment(App.Vector(23, 9, 0), App.Vector(23, 2, 0)),
    Part.LineSegment(App.Vector(23, 2, 0), App.Vector(-42.6, 2, 0)),
    Part.LineSegment(App.Vector(-42.6, 2, 0), App.Vector(-42.6, 0, 0)),
    Part.LineSegment(App.Vector(-42.6, 0, 0), App.Vector(33, 0, 0)),
    Part.LineSegment(App.Vector(33, 0, 0), App.Vector(33, 11, 0)),
    Part.LineSegment(App.Vector(33, 11, 0), App.Vector(25, 11, 0)),
    Part.LineSegment(App.Vector(25, 11, 0), App.Vector(23, 9, 0)),
], False)
sketch16.addConstraint([
    Sketcher.Constraint("Coincident", 0, 2, 1, 1),
    Sketcher.Constraint("Coincident", 1, 2, 2, 1),
    Sketcher.Constraint("Coincident", 2, 2, 3, 1),
    Sketcher.Constraint("Coincident", 3, 2, 4, 1),
    Sketcher.Constraint("Coincident", 4, 2, 5, 1),
    Sketcher.Constraint("Coincident", 5, 2, 6, 1),
    Sketcher.Constraint("Coincident", 6, 2, 0, 1),
    Sketcher.Constraint("Vertical", 0),
    Sketcher.Constraint("Horizontal", 1),
    Sketcher.Constraint("Vertical", 2),
    Sketcher.Constraint("Horizontal", 3),
    Sketcher.Constraint("Vertical", 4),
    Sketcher.Constraint("Horizontal", 5),
    Sketcher.Constraint("PointOnObject", 2, 2, -1),
    Sketcher.Constraint("DistanceX", 5, 2, 5, 1, Q("8 mm")),
    Sketcher.Constraint("DistanceY", 0, 2, 0, 1, Q("7 mm")),
    Sketcher.Constraint("DistanceY", 2, 2, 2, 1, Q("2 mm")),
    Sketcher.Constraint("DistanceY", 4, 1, 4, 2, Q("11 mm")),
    Sketcher.Constraint("Angle", 6, Q("-135 deg")),
    Sketcher.Constraint("DistanceX", 1, 2, 1, 1, Q("65.6 mm")),
    Sketcher.Constraint("DistanceX", -1, 1, 0, 2, Q("23.033274 mm")),
])
sketch16.setExpression("Constraints[14]", "Params.sketch16_width")
sketch16.setExpression("Constraints[15]", "Params.sketch16_height")
sketch16.setExpression("Constraints[16]", "Params.sketch16_height2")
sketch16.setExpression("Constraints[17]", "Params.sketch16_height3")
sketch16.setExpression("Constraints[19]", "Params.sketch16_width2")
pad9 = body.newObject("PartDesign::Pad", "Pad008")
pad9.Profile = sketch16
pad9.setExpression("Length", "Params.pad9_length")

sketch17 = body.newObject("Sketcher::SketchObject", "Sketch016")
sketch17.AttachmentSupport = (doc.getObject("XY_Plane"), [""])
sketch17.MapMode = "FlatFace"
sketch17.AttachmentOffset = App.Placement(App.Vector(0, 0, -5), App.Rotation())
sketch17.addGeometry([
    Part.ArcOfCircle(Part.Circle(App.Vector(0, -34, 0), App.Vector(0, 0, 1), 5), math.radians(0), math.radians(180)),
    Part.LineSegment(App.Vector(5, -34, 0), App.Vector(-5, -34, 0)),
], False)
sketch17.addConstraint([
    Sketcher.Constraint("Coincident", 0, 1, 1, 1),
    Sketcher.Constraint("Coincident", 1, 2, 0, 2),
    Sketcher.Constraint("Horizontal", 1),
    Sketcher.Constraint("Radius", 0, Q("5 mm")),
    Sketcher.Constraint("DistanceY", 0, 1, -1, 1, Q("34 mm")),
    Sketcher.Constraint("DistanceX", 0, 3, -1, 1, Q("0.121221 mm")),
    Sketcher.Constraint("DistanceY", 0, 3, -1, 1, Q("33.999784 mm")),
])
sketch17.setExpression("Constraints[3]", "Params.sketch17_radius")
pocket8 = body.newObject("PartDesign::Pocket", "Pocket007")
pocket8.Profile = sketch17
pocket8.setExpression("Length", "Params.pocket8_length")
pocket8.Reversed = True
doc.recompute()

chamfer4 = body.newObject("PartDesign::Chamfer", "Chamfer003")
chamfer4.Base = (pocket8, edges_at(pocket8, [(-0.121, -29, -5)]))
chamfer4.setExpression("Size", "Params.chamfer4_size")
doc.recompute()

fillet = body.newObject("PartDesign::Fillet", "Fillet")
fillet.Base = (chamfer4, edges_at(chamfer4, [(-35.621, -7.967, -5), (35.379, -7.967, -5)]))
fillet.setExpression("Radius", "Params.fillet_radius")
body2 = doc.addObject("PartDesign::Body", "Body001")
doc.recompute()

body.Placement = App.Placement(App.Vector(0.1, -10.49, -34), App.Rotation(App.Vector(0, 0, 1), 0))
boolean = body2.newObject("PartDesign::Boolean", "Boolean")
boolean.Type = "Fuse"
boolean.addObjects([body])

doc.recompute()
